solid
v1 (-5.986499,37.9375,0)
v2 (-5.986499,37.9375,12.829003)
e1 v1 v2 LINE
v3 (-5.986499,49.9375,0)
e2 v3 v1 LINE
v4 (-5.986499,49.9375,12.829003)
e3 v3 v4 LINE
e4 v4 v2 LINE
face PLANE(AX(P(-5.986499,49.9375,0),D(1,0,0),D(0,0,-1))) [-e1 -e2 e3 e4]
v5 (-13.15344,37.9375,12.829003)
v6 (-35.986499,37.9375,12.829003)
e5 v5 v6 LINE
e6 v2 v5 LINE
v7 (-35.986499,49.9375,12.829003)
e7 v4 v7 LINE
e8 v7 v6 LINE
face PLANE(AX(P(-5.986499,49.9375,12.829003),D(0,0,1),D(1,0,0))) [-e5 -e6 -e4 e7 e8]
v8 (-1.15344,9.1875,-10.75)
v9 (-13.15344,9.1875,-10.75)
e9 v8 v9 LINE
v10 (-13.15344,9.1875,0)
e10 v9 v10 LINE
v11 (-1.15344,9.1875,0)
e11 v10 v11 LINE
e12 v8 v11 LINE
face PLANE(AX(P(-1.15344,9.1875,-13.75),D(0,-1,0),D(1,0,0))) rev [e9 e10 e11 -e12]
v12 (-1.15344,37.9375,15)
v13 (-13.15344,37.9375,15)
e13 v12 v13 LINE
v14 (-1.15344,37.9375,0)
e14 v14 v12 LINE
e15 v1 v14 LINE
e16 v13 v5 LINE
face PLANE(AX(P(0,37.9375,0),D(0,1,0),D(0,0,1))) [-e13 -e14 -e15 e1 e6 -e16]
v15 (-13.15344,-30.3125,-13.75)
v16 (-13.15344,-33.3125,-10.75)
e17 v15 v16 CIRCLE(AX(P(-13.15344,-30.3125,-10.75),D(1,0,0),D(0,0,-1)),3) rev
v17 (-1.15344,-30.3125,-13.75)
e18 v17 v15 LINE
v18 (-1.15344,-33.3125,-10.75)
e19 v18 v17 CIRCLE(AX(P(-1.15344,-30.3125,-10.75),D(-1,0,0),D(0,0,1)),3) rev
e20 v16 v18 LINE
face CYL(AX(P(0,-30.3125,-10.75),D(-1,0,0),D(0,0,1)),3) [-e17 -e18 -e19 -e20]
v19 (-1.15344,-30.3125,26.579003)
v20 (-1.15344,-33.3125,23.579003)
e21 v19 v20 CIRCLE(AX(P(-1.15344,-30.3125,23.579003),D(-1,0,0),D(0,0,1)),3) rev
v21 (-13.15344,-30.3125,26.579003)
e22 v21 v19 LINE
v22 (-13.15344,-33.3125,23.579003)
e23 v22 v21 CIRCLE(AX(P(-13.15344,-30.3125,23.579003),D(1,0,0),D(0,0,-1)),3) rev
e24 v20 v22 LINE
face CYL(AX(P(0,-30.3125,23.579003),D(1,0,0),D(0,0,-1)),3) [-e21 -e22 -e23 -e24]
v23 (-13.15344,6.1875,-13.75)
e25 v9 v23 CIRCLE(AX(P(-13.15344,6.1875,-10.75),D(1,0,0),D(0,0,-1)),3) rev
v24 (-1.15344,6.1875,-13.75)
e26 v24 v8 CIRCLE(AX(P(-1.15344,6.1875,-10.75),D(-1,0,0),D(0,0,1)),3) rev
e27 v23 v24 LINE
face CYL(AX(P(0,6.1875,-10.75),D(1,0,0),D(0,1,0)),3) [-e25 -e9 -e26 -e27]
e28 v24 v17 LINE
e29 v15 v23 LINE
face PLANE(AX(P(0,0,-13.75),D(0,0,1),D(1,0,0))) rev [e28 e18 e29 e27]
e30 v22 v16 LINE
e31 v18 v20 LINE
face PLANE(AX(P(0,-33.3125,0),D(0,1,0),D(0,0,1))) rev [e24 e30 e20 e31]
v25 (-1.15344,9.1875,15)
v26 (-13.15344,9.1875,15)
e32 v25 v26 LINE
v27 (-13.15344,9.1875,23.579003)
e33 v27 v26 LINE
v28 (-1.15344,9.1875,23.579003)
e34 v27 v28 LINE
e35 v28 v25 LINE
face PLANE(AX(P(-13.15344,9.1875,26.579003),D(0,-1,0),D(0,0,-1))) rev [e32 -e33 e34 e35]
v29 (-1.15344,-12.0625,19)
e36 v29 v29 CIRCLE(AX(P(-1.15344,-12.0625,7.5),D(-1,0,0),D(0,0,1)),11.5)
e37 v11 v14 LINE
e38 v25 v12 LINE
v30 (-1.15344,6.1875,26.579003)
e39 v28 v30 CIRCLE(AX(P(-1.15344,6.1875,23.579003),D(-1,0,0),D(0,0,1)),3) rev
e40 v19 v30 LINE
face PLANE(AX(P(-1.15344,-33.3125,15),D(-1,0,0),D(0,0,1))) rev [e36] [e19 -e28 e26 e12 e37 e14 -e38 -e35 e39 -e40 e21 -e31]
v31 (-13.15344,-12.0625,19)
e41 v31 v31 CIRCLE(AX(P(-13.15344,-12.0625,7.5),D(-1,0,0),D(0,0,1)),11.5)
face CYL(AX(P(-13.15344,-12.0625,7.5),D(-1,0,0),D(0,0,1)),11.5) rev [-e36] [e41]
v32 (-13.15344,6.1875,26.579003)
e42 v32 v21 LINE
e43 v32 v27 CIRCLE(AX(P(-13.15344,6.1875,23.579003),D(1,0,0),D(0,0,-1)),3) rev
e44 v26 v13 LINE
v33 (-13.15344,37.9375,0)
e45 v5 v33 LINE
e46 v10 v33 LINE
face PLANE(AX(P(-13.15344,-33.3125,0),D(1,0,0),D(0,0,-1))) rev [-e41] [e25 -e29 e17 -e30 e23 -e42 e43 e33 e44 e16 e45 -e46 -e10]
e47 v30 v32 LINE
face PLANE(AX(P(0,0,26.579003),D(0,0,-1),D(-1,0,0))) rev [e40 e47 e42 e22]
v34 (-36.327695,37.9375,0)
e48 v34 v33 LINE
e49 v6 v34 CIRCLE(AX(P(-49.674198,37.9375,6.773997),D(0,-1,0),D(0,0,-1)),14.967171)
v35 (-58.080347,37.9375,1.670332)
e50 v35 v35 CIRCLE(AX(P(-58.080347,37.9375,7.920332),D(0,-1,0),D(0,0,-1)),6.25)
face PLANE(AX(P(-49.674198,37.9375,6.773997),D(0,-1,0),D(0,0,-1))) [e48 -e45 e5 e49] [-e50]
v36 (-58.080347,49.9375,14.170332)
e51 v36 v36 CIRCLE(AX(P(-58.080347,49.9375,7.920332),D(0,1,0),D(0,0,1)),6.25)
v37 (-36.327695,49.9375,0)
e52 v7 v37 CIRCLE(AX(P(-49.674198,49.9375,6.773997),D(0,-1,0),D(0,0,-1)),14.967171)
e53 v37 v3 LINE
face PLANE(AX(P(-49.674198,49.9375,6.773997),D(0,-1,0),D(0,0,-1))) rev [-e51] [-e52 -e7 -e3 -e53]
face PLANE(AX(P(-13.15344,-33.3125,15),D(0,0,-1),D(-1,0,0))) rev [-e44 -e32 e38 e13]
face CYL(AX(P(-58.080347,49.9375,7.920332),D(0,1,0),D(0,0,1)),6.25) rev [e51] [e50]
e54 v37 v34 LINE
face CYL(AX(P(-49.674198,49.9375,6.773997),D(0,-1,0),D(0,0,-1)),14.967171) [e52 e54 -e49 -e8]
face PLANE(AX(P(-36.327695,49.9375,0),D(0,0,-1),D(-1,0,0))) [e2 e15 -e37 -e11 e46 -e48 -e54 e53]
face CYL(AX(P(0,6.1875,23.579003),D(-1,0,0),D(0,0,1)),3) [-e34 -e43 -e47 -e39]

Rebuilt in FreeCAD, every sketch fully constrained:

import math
import FreeCAD as App
import Part
import Sketcher


def edges_at(feature, points):
    """Names of the edges that pass closest to the given points."""
    edges = feature.Shape.Edges
    near = lambda p: min(range(len(edges)), key=lambda i: edges[i].distToShape(Part.Vertex(*p))[0])
    return sorted({f"Edge{near(p) + 1}" for p in points})

doc = App.newDocument("Part")
body = doc.addObject("PartDesign::Body", "Body")

# Sketch on XZ plane
sketch1 = body.newObject("Sketcher::SketchObject", "Sketch")
sketch1.AttachmentSupport = (doc.getObject("XZ_Plane"), [""])
sketch1.MapMode = "FlatFace"
sketch1.AttachmentOffset = App.Placement(App.Vector(0, 0, -37.9375), App.Rotation())
sketch1.addGeometry(Part.LineSegment(App.Vector(-6, 13, 0), App.Vector(-36, 13, 0)), False)
sketch1.addGeometry(Part.ArcOfCircle(Part.Circle(App.Vector(-50, 7, 0), App.Vector(0, 0, 1), 15), math.radians(24), math.radians(333)), False)
sketch1.addGeometry(Part.LineSegment(App.Vector(-36, 0, 0), App.Vector(-6, 0, 0)), False)
sketch1.addGeometry(Part.LineSegment(App.Vector(-6, 0, 0), App.Vector(-6, 13, 0)), False)
sketch1.addConstraint(Sketcher.Constraint("Coincident", 0, 2, 1, 1))
sketch1.addConstraint(Sketcher.Constraint("Coincident", 1, 2, 2, 1))
sketch1.addConstraint(Sketcher.Constraint("Coincident", 2, 2, 3, 1))
sketch1.addConstraint(Sketcher.Constraint("Coincident", 3, 2, 0, 1))
sketch1.addConstraint(Sketcher.Constraint("Horizontal", 0))
sketch1.addConstraint(Sketcher.Constraint("Horizontal", 2))
sketch1.addConstraint(Sketcher.Constraint("Vertical", 3))
sketch1.addConstraint(Sketcher.Constraint("PointOnObject", 1, 2, -1))
sketch1.addConstraint(Sketcher.Constraint("DistanceX", 0, 2, 0, 1, 30.0))
sketch1.addConstraint(Sketcher.Constraint("Radius", 1, 14.967171))
sketch1.addConstraint(Sketcher.Constraint("DistanceX", 1, 3, -1, 1, 49.674198))
sketch1.addConstraint(Sketcher.Constraint("DistanceX", 0, 2, -1, 1, 35.986499))
sketch1.addConstraint(Sketcher.Constraint("DistanceX", 2, 1, 2, 2, 30.341195))
pad1 = body.newObject("PartDesign::Pad", "Pad")
pad1.Profile = sketch1
pad1.Length = 12
pad1.Reversed = True

# Sketch on XZ plane
sketch2 = body.newObject("Sketcher::SketchObject", "Sketch001")
sketch2.AttachmentSupport = (doc.getObject("XZ_Plane"), [""])
sketch2.MapMode = "FlatFace"
sketch2.AttachmentOffset = App.Placement(App.Vector(0, 0, -37.9375), App.Rotation())
sketch2.addGeometry(Part.LineSegment(App.Vector(-13, 15, 0), App.Vector(-13, 0, 0)), False)
sketch2.addGeometry(Part.LineSegment(App.Vector(-13, 0, 0), App.Vector(-1, 0, 0)), False)
sketch2.addGeometry(Part.LineSegment(App.Vector(-1, 0, 0), App.Vector(-1, 15, 0)), False)
sketch2.addGeometry(Part.LineSegment(App.Vector(-1, 15, 0), App.Vector(-13, 15, 0)), False)
sketch2.addConstraint(Sketcher.Constraint("Coincident", 0, 2, 1, 1))
sketch2.addConstraint(Sketcher.Constraint("Coincident", 1, 2, 2, 1))
sketch2.addConstraint(Sketcher.Constraint("Coincident", 2, 2, 3, 1))
sketch2.addConstraint(Sketcher.Constraint("Coincident", 3, 2, 0, 1))
sketch2.addConstraint(Sketcher.Constraint("Vertical", 0))
sketch2.addConstraint(Sketcher.Constraint("Horizontal", 1))
sketch2.addConstraint(Sketcher.Constraint("Vertical", 2))
sketch2.addConstraint(Sketcher.Constraint("Horizontal", 3))
sketch2.addConstraint(Sketcher.Constraint("PointOnObject", 0, 2, -1))
sketch2.addConstraint(Sketcher.Constraint("DistanceX", 1, 1, 1, 2, 12.0))
sketch2.addConstraint(Sketcher.Constraint("DistanceY", 0, 2, 0, 1, 15.0))
sketch2.addConstraint(Sketcher.Constraint("DistanceX", 0, 2, -1, 1, 13.15344))
pad2 = body.newObject("PartDesign::Pad", "Pad001")
pad2.Profile = sketch2
pad2.Length = 71.25

# Sketch on XY plane
sketch3 = body.newObject("Sketcher::SketchObject", "Sketch002")
sketch3.AttachmentSupport = (doc.getObject("XY_Plane"), [""])
sketch3.MapMode = "FlatFace"
sketch3.addGeometry(Part.LineSegment(App.Vector(-1, 9, 0), App.Vector(-1, -33, 0)), False)
sketch3.addGeometry(Part.LineSegment(App.Vector(-1, -33, 0), App.Vector(-13, -33, 0)), False)
sketch3.addGeometry(Part.LineSegment(App.Vector(-13, -33, 0), App.Vector(-13, 9, 0)), False)
sketch3.addGeometry(Part.LineSegment(App.Vector(-13, 9, 0), App.Vector(-1, 9, 0)), False)
sketch3.addConstraint(Sketcher.Constraint("Coincident", 0, 2, 1, 1))
sketch3.addConstraint(Sketcher.Constraint("Coincident", 1, 2, 2, 1))
sketch3.addConstraint(Sketcher.Constraint("Coincident", 2, 2, 3, 1))
sketch3.addConstraint(Sketcher.Constraint("Coincident", 3, 2, 0, 1))
sketch3.addConstraint(Sketcher.Constraint("Vertical", 0))
sketch3.addConstraint(Sketcher.Constraint("Horizontal", 1))
sketch3.addConstraint(Sketcher.Constraint("Vertical", 2))
sketch3.addConstraint(Sketcher.Constraint("Horizontal", 3))
sketch3.addConstraint(Sketcher.Constraint("DistanceX", 1, 2, 1, 1, 12.0))
sketch3.addConstraint(Sketcher.Constraint("DistanceY", 0, 2, 0, 1, 42.5))
sketch3.addConstraint(Sketcher.Constraint("DistanceY", 0, 2, -1, 1, 33.3125))
sketch3.addConstraint(Sketcher.Constraint("DistanceX", 0, 2, -1, 1, 1.15344))
pad3 = body.newObject("PartDesign::Pad", "Pad002")
pad3.Profile = sketch3
pad3.Length = 13.75
pad3.Reversed = True

# Sketch on XY plane
sketch4 = body.newObject("Sketcher::SketchObject", "Sketch003")
sketch4.AttachmentSupport = (doc.getObject("XY_Plane"), [""])
sketch4.MapMode = "FlatFace"
sketch4.AttachmentOffset = App.Placement(App.Vector(0, 0, 12.829003), App.Rotation())
sketch4.addGeometry(Part.LineSegment(App.Vector(-13, 9, 0), App.Vector(-13, -33, 0)), False)
sketch4.addGeometry(Part.LineSegment(App.Vector(-13, -33, 0), App.Vector(-1, -33, 0)), False)
sketch4.addGeometry(Part.LineSegment(App.Vector(-1, -33, 0), App.Vector(-1, 9, 0)), False)
sketch4.addGeometry(Part.LineSegment(App.Vector(-1, 9, 0), App.Vector(-13, 9, 0)), False)
sketch4.addConstraint(Sketcher.Constraint("Coincident", 0, 2, 1, 1))
sketch4.addConstraint(Sketcher.Constraint("Coincident", 1, 2, 2, 1))
sketch4.addConstraint(Sketcher.Constraint("Coincident", 2, 2, 3, 1))
sketch4.addConstraint(Sketcher.Constraint("Coincident", 3, 2, 0, 1))
sketch4.addConstraint(Sketcher.Constraint("Vertical", 0))
sketch4.addConstraint(Sketcher.Constraint("Horizontal", 1))
sketch4.addConstraint(Sketcher.Constraint("Vertical", 2))
sketch4.addConstraint(Sketcher.Constraint("Horizontal", 3))
sketch4.addConstraint(Sketcher.Constraint("DistanceX", 1, 1, 1, 2, 12.0))
sketch4.addConstraint(Sketcher.Constraint("DistanceY", 0, 2, 0, 1, 42.5))
sketch4.addConstraint(Sketcher.Constraint("DistanceY", 0, 2, -1, 1, 33.3125))
sketch4.addConstraint(Sketcher.Constraint("DistanceX", 0, 2, -1, 1, 13.15344))
pad4 = body.newObject("PartDesign::Pad", "Pad003")
pad4.Profile = sketch4
pad4.Length = 13.75

# Sketch on YZ plane
sketch5 = body.newObject("Sketcher::SketchObject", "Sketch004")
sketch5.AttachmentSupport = (doc.getObject("YZ_Plane"), [""])
sketch5.MapMode = "FlatFace"
sketch5.AttachmentOffset = App.Placement(App.Vector(0, 0, -13.15344), App.Rotation())
sketch5.addGeometry(Part.Circle(App.Vector(-12, 8, 0), App.Vector(0, 0, 1), 12), False)
sketch5.addConstraint(Sketcher.Constraint("Diameter", 0, 23.0))
sketch5.addConstraint(Sketcher.Constraint("DistanceY", -1, 1, 0, 3, 7.5))
sketch5.addConstraint(Sketcher.Constraint("DistanceX", 0, 3, -1, 1, 12.0625))
doc.recompute()
hole = body.newObject("PartDesign::Hole", "Hole")
hole.Profile = sketch5
hole.ThreadType = "None"
hole.Diameter = 23
hole.DepthType = "ThroughAll"
hole.Reversed = True

# Sketch on XZ plane
sketch6 = body.newObject("Sketcher::SketchObject", "Sketch005")
sketch6.AttachmentSupport = (doc.getObject("XZ_Plane"), [""])
sketch6.MapMode = "FlatFace"
sketch6.AttachmentOffset = App.Placement(App.Vector(0, 0, -49.9375), App.Rotation())
sketch6.addGeometry(Part.Circle(App.Vector(-58, 8, 0), App.Vector(0, 0, 1), 6), False)
sketch6.addConstraint(Sketcher.Constraint("Diameter", 0, 12.5))
sketch6.addConstraint(Sketcher.Constraint("DistanceY", -1, 1, 0, 3, 7.920332))
sketch6.addConstraint(Sketcher.Constraint("DistanceX", 0, 3, -1, 1, 58.080347))
doc.recompute()
hole2 = body.newObject("PartDesign::Hole", "Hole001")
hole2.Profile = sketch6
hole2.ThreadType = "None"
hole2.Diameter = 12.5
hole2.DepthType = "Dimension"
hole2.Depth = 83.25
hole2.DrillPoint = "Flat"
hole2.Reversed = True
doc.recompute()

fillet = body.newObject("PartDesign::Fillet", "Fillet")
fillet.Base = (hole2, edges_at(hole2, [
    (-7.153, -33.312, -13.75),
    (-7.153, 9.188, -13.75),
    (-7.153, -33.312, 26.579),
    (-7.153, 9.188, 26.579),
]))
fillet.Radius = 3

doc.recompute()
